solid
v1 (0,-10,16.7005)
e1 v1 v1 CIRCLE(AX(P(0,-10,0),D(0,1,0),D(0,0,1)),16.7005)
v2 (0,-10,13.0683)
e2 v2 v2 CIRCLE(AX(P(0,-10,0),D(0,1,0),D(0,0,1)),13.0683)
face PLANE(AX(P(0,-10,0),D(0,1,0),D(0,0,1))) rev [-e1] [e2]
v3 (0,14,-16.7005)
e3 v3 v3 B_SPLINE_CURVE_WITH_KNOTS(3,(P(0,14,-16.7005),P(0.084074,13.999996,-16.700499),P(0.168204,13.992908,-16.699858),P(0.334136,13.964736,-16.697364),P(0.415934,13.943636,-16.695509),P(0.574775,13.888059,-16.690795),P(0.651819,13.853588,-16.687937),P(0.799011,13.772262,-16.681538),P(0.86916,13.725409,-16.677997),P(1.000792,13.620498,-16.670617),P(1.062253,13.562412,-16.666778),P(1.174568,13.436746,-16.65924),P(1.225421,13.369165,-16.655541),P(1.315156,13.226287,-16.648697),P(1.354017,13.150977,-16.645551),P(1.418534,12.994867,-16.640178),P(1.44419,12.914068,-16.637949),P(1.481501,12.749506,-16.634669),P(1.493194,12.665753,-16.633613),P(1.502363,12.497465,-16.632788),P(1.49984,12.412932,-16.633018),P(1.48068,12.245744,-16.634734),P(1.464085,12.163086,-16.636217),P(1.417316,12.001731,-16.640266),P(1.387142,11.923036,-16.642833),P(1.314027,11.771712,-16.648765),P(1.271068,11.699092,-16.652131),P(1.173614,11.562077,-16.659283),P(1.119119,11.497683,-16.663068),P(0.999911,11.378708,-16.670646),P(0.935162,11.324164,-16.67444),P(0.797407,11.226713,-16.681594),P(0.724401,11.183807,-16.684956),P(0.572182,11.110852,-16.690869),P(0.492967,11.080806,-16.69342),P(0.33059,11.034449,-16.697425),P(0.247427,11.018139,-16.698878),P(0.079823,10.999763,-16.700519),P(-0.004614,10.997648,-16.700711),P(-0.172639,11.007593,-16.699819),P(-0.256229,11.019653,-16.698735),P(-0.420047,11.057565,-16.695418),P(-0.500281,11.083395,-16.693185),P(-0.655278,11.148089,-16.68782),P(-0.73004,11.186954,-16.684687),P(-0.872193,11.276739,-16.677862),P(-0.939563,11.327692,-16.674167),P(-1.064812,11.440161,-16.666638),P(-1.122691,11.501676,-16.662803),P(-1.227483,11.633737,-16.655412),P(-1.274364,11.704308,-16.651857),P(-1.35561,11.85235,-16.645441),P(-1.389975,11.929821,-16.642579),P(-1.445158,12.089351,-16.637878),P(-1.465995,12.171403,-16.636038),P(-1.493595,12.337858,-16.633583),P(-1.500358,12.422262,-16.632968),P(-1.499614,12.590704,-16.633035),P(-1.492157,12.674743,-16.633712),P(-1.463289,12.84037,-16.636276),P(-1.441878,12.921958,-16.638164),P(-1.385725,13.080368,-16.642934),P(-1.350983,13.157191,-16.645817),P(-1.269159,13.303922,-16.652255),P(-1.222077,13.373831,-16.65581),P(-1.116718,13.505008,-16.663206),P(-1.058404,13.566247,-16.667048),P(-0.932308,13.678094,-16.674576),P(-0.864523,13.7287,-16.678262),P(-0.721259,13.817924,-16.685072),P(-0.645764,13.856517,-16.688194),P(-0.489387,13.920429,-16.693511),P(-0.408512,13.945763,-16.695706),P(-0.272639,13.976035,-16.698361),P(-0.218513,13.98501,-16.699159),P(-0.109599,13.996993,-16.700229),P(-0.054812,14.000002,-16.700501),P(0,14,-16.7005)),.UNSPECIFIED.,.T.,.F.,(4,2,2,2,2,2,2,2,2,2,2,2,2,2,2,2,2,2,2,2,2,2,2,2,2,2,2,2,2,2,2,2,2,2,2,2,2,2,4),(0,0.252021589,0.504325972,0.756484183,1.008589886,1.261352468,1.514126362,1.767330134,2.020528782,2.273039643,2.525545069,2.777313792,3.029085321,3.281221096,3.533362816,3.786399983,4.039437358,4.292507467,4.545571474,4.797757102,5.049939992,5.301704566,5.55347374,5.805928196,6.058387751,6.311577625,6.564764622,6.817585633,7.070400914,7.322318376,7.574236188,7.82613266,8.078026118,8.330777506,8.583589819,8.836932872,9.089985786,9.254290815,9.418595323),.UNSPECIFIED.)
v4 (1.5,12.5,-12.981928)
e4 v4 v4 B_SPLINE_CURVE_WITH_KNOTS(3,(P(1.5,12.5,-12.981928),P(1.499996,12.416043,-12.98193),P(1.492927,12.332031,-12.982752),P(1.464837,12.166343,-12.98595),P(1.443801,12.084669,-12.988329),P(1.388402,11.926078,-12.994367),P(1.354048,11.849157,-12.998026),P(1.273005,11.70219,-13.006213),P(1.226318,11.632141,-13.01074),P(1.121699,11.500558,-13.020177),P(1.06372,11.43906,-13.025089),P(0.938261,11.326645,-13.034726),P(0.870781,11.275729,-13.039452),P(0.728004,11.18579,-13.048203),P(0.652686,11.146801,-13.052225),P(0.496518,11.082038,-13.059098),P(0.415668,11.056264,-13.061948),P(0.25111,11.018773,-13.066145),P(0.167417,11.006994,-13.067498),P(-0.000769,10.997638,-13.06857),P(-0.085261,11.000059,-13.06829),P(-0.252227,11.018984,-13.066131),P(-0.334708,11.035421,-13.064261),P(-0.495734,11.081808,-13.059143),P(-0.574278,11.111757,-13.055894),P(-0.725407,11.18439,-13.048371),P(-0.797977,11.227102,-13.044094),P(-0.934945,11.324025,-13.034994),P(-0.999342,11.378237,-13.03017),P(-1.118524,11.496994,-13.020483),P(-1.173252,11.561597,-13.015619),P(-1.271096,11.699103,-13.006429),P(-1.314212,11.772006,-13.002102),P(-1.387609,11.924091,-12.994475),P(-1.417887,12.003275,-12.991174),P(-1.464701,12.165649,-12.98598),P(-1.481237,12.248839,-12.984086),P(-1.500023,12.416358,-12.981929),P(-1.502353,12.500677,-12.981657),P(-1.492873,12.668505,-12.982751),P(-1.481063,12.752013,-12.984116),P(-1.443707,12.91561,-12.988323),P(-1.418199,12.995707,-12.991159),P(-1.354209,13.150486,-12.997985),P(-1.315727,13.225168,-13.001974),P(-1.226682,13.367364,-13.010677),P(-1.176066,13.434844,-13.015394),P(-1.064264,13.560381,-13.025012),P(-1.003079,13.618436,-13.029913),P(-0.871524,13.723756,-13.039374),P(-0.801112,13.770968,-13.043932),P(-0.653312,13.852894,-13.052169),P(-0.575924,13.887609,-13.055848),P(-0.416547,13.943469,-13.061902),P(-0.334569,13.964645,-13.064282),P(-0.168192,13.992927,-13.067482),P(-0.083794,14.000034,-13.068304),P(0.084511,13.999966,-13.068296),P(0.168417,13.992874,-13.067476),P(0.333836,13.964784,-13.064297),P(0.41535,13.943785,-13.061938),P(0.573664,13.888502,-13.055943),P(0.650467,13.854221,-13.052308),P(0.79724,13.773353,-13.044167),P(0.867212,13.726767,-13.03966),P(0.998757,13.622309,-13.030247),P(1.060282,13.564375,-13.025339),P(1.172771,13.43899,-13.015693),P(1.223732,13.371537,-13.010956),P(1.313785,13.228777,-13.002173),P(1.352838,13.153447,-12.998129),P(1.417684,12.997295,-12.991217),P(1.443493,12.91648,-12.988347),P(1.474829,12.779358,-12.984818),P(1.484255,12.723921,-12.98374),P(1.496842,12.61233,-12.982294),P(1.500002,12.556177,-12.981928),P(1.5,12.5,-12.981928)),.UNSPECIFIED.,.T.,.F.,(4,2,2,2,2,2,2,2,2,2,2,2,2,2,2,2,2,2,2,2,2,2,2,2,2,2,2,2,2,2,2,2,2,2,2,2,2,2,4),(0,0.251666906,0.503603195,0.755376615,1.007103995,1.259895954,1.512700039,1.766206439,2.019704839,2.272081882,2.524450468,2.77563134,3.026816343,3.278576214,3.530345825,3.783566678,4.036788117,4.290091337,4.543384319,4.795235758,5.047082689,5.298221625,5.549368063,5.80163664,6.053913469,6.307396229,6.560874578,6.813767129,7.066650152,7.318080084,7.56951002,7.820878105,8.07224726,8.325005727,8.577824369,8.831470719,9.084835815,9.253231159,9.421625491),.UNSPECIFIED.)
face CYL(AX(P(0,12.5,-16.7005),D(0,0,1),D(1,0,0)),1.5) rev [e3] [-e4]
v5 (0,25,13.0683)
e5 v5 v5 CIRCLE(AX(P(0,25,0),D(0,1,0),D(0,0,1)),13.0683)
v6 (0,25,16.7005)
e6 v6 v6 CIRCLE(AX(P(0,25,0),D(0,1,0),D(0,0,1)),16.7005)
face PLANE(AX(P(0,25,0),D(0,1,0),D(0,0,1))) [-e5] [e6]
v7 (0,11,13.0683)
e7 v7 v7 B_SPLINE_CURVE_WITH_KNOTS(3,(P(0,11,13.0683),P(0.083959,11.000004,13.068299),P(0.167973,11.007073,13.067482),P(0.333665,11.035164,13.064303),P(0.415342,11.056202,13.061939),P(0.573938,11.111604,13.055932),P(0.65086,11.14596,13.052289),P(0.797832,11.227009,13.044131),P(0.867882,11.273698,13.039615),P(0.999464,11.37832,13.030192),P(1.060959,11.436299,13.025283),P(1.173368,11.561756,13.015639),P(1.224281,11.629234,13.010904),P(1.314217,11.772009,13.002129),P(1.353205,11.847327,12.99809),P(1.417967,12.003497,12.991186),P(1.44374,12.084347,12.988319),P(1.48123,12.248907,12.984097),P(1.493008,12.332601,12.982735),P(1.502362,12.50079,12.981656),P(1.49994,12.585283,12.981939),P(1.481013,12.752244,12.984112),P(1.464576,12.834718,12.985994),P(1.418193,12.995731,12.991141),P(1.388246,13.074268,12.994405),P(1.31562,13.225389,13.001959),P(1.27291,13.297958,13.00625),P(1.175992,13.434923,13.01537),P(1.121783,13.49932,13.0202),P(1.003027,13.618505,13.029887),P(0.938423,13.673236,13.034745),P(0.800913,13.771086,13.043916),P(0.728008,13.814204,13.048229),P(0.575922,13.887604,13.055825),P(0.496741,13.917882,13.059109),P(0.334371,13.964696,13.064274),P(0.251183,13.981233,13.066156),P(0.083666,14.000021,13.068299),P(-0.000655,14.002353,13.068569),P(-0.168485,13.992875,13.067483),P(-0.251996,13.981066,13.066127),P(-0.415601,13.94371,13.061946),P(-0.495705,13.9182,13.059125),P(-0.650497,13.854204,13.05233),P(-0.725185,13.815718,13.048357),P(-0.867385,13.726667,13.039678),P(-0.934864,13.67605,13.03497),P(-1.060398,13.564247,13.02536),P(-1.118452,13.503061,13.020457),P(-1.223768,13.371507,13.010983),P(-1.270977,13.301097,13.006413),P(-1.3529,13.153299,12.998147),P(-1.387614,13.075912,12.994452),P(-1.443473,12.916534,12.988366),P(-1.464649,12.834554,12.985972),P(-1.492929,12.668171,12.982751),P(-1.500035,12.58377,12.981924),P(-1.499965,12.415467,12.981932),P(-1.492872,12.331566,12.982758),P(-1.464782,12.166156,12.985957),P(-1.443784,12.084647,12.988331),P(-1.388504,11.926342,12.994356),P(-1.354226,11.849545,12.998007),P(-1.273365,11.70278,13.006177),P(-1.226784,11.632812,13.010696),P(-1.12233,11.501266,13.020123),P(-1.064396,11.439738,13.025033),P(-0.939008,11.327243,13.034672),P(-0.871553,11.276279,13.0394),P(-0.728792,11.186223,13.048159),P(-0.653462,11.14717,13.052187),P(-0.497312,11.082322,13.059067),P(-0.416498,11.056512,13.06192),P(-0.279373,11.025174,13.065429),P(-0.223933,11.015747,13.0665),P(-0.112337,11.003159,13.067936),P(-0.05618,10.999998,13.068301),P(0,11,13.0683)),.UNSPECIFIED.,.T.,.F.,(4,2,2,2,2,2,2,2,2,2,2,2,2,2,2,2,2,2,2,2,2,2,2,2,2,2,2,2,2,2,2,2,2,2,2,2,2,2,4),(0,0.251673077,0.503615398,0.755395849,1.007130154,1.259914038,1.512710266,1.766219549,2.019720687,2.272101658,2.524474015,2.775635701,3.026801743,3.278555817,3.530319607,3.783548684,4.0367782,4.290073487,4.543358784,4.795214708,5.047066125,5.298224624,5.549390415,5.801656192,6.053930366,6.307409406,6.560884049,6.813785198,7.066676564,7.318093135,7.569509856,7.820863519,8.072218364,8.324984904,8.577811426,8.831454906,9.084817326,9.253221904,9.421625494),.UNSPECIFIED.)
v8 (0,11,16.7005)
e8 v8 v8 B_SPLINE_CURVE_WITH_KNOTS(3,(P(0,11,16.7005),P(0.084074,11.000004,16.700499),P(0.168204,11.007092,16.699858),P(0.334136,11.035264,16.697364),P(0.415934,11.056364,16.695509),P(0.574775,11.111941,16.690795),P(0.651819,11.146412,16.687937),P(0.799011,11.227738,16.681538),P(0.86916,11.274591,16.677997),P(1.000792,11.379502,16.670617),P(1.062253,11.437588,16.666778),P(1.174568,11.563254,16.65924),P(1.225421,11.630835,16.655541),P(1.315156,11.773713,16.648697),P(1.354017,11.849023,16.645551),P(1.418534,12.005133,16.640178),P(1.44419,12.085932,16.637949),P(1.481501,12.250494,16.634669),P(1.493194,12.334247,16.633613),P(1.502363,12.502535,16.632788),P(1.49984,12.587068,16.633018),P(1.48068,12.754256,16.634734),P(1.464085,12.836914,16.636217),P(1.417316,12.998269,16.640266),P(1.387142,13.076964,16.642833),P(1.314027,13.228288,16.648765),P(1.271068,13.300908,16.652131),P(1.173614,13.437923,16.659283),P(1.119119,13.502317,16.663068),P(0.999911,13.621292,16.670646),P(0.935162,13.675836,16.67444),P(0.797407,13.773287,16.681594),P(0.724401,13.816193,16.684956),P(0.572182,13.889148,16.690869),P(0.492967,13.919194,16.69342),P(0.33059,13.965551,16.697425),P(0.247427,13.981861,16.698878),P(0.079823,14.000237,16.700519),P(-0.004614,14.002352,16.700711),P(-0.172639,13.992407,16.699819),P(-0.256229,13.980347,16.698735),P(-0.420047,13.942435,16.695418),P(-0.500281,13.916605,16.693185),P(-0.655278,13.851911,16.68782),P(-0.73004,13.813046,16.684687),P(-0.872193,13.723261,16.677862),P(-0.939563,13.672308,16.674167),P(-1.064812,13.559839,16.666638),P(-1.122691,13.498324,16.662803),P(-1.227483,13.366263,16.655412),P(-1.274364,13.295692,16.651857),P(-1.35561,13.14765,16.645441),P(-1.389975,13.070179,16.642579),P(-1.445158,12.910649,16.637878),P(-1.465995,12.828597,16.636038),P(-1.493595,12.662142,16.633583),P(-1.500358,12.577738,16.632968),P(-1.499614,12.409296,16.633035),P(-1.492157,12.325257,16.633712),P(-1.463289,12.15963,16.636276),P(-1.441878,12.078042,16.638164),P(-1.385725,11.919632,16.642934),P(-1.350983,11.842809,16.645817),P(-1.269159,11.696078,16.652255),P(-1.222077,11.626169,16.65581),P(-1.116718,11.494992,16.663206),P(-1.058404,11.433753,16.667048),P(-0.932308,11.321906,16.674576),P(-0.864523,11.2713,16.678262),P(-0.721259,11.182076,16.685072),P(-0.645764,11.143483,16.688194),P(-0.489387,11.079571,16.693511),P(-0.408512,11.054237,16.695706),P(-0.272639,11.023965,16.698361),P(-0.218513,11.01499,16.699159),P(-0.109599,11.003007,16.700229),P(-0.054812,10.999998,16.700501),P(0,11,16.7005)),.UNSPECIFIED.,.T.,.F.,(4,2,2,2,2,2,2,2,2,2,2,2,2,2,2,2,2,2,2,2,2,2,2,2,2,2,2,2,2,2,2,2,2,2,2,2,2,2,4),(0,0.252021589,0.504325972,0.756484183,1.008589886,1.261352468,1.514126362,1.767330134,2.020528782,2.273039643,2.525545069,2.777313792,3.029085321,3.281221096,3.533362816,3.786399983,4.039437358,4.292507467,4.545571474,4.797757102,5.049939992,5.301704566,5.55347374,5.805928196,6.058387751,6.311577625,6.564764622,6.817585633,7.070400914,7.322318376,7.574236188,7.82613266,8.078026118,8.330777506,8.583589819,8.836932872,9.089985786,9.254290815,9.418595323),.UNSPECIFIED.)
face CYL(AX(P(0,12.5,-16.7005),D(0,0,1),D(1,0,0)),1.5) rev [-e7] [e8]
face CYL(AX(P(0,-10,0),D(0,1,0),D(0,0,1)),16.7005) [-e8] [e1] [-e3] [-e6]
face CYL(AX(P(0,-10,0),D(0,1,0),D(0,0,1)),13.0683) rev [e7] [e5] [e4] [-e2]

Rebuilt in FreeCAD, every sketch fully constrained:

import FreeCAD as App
import Part
import Sketcher
Q = App.Units.Quantity

doc = App.newDocument("Part")
body = doc.addObject("PartDesign::Body", "Body")

# Sketch on XZ plane
sketch1 = body.newObject("Sketcher::SketchObject", "Sketch")
sketch1.AttachmentSupport = (doc.getObject("XZ_Plane"), [""])
sketch1.MapMode = "FlatFace"
sketch1.addGeometry(Part.Circle(App.Vector(0, 0, 0), App.Vector(0, 0, 1), 17), False)
sketch1.addGeometry(Part.Circle(App.Vector(0, 0, 0), App.Vector(0, 0, 1), 13), False)
sketch1.addConstraint(Sketcher.Constraint("Coincident", 0, 3, -1, 1))
sketch1.addConstraint(Sketcher.Constraint("Coincident", 1, 3, -1, 1))
sketch1.addConstraint(Sketcher.Constraint("Diameter", 0, Q("33.401 mm")))
sketch1.addConstraint(Sketcher.Constraint("Diameter", 1, Q("26.1366 mm")))
pad1 = body.newObject("PartDesign::Pad", "Pad")
pad1.Profile = sketch1
pad1.Type = "TwoLengths"
pad1.Length = 25
pad1.Length2 = 10
pad1.Reversed = True

# Sketch on XY plane
sketch2 = body.newObject("Sketcher::SketchObject", "Sketch001")
sketch2.AttachmentSupport = (doc.getObject("XY_Plane"), [""])
sketch2.MapMode = "FlatFace"
sketch2.addGeometry(Part.Circle(App.Vector(0, 12.5, 0), App.Vector(0, 0, 1), 1.5), False)
sketch2.addConstraint(Sketcher.Constraint("PointOnObject", 0, 3, -2))
sketch2.addConstraint(Sketcher.Constraint("Diameter", 0, Q("3 mm")))
sketch2.addConstraint(Sketcher.Constraint("DistanceY", -1, 1, 0, 3, Q("12.5 mm")))
pocket1 = body.newObject("PartDesign::Pocket", "Pocket")
pocket1.Profile = sketch2
pocket1.Type = "ThroughAll"
pocket1.Midplane = True

doc.recompute()
